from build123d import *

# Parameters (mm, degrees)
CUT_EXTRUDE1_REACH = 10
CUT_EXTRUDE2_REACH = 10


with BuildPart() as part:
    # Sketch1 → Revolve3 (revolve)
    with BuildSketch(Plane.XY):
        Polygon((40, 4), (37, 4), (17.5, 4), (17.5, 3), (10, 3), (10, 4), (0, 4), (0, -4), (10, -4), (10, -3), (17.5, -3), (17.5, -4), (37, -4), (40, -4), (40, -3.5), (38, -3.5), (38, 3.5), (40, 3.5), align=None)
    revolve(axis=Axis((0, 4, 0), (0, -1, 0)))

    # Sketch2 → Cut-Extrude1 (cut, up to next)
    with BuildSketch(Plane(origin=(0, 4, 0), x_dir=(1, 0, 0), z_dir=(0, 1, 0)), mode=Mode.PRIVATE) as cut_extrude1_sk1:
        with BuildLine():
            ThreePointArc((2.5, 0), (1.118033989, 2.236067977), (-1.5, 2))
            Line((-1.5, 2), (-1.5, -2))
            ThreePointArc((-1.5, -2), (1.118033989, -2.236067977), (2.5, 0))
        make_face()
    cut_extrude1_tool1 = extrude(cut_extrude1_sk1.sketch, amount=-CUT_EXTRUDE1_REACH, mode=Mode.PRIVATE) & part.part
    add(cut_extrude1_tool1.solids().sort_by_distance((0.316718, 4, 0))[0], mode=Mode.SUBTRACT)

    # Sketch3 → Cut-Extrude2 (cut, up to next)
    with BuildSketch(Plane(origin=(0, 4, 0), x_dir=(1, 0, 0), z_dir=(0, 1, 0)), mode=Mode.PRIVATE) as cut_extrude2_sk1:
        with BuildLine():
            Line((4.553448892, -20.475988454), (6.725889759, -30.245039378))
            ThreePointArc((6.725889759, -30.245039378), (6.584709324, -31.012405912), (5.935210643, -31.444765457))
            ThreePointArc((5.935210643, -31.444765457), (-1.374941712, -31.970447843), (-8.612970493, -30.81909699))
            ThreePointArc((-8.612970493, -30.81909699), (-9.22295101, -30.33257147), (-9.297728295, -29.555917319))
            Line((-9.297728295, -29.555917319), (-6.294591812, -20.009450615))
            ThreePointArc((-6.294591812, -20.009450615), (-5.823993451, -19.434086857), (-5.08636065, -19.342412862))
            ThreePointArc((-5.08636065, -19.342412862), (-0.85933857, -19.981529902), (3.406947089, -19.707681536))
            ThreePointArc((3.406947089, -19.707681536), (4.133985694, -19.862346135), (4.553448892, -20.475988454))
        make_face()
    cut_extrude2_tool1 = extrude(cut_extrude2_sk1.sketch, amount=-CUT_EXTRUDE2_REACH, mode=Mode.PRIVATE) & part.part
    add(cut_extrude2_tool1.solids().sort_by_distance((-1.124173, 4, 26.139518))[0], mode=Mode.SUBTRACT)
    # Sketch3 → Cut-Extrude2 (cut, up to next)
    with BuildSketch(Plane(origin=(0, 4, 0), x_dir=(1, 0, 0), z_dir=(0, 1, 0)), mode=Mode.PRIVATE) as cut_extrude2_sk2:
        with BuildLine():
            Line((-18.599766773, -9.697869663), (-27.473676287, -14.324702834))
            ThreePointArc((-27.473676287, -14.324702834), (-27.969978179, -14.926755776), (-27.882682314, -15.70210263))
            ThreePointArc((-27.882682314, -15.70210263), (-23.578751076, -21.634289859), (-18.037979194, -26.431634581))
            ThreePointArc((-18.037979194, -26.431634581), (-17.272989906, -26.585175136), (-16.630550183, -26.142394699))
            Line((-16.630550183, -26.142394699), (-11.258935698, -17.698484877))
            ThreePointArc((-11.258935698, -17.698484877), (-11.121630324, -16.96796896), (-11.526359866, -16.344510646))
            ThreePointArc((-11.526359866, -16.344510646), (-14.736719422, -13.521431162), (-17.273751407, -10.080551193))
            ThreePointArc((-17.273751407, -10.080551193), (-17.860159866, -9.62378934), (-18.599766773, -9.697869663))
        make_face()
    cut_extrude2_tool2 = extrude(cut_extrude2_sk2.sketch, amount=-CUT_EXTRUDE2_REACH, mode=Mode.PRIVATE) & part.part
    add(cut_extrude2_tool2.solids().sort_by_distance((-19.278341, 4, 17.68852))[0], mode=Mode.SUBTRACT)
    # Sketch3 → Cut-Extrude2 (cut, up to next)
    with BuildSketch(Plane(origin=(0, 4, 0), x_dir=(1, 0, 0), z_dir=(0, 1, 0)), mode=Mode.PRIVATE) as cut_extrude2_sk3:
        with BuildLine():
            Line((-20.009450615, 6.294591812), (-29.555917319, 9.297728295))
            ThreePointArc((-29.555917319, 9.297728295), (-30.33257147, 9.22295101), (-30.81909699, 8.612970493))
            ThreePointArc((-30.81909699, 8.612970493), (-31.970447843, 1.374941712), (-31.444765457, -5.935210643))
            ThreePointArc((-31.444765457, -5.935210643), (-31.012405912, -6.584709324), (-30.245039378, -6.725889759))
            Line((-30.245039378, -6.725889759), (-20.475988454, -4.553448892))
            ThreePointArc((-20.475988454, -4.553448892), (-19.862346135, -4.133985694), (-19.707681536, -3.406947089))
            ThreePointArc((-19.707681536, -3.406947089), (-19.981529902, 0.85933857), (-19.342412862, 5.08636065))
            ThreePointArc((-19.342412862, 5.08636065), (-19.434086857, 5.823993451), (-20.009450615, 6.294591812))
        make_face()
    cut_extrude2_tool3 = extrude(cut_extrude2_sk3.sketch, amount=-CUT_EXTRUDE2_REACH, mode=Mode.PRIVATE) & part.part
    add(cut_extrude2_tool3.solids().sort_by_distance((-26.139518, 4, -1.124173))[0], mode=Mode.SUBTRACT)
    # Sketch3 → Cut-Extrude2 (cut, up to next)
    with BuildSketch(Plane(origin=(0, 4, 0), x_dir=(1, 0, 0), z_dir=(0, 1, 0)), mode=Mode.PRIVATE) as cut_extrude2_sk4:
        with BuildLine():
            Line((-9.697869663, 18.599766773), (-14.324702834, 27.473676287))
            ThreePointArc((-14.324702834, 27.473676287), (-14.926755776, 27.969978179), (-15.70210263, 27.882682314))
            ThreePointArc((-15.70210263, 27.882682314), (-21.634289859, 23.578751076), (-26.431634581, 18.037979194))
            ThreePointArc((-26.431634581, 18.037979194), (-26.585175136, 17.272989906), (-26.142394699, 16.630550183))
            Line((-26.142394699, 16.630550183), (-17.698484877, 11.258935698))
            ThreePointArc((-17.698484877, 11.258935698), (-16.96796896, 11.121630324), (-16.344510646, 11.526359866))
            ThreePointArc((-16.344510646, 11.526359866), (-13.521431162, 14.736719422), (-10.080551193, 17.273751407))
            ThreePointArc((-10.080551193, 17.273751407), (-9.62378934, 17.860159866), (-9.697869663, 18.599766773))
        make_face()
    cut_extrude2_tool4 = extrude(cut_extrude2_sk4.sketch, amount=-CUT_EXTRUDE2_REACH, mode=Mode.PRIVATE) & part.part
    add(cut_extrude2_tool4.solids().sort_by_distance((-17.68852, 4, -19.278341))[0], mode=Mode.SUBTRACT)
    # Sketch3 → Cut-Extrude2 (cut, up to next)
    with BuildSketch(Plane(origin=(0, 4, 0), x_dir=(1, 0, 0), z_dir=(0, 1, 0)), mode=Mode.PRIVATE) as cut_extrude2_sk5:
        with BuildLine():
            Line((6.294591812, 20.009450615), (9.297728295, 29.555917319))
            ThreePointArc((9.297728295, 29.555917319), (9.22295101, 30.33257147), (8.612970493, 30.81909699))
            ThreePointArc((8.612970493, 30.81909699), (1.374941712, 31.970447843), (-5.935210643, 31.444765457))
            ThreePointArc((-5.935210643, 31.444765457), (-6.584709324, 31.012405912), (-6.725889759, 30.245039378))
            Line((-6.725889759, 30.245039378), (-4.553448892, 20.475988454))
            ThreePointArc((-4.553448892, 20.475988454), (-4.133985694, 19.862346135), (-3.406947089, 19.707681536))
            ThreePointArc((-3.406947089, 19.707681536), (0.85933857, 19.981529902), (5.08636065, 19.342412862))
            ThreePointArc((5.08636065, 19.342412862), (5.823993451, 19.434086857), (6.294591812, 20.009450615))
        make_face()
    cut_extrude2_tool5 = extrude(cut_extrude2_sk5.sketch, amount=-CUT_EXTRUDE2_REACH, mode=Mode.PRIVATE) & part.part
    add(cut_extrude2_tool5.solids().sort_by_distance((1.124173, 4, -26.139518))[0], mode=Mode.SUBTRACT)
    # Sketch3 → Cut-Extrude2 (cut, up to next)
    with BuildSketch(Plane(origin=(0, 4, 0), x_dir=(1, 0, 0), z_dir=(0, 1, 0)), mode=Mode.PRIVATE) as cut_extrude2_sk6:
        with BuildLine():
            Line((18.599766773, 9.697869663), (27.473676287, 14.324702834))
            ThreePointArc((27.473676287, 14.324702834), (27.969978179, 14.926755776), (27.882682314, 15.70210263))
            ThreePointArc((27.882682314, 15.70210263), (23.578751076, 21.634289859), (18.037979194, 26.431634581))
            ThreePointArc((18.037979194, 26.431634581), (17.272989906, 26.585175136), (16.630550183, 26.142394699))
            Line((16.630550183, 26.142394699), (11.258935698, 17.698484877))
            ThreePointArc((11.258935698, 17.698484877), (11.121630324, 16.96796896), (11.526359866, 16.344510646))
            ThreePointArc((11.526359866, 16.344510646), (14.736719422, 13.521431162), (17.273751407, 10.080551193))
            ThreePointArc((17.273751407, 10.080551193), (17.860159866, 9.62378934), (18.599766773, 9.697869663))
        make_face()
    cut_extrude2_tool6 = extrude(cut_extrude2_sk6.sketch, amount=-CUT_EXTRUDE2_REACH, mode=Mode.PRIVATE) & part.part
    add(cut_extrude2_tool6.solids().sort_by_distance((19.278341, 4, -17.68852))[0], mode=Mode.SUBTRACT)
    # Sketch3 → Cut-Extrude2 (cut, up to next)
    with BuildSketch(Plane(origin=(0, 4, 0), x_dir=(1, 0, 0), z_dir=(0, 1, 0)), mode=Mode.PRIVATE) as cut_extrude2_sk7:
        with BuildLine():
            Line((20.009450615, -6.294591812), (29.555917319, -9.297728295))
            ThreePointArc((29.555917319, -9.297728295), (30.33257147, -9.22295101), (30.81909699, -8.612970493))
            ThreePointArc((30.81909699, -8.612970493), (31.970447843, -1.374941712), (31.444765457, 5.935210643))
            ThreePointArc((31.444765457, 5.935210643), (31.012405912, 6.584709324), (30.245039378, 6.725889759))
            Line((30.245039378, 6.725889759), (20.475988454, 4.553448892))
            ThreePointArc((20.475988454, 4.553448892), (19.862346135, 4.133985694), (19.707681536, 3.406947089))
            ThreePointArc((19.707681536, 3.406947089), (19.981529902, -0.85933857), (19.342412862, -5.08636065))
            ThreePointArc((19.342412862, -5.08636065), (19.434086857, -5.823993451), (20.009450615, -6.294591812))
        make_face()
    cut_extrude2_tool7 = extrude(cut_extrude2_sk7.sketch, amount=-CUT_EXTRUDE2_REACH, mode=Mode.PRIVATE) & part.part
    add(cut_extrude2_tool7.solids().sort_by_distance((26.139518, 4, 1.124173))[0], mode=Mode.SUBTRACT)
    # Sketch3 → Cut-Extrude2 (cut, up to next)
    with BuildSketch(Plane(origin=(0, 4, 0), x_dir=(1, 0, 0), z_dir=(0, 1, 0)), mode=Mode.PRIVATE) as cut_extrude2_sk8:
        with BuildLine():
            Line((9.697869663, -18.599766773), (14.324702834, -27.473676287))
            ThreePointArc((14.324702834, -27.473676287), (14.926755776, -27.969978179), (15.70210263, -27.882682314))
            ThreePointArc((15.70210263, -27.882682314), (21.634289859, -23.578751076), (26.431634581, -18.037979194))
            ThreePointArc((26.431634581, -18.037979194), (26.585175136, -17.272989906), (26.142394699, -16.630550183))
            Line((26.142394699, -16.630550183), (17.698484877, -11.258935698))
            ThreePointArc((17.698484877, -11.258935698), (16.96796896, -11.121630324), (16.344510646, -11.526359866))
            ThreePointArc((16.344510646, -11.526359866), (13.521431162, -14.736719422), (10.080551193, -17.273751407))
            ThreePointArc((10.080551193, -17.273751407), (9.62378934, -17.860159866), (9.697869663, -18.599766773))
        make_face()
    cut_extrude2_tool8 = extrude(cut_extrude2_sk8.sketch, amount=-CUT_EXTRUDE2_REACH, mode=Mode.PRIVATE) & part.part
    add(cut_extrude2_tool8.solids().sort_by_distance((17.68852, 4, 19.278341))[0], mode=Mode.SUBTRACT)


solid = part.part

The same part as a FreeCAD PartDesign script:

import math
import FreeCAD as App
import Part
import Sketcher
Q = App.Units.Quantity

doc = App.newDocument("Part")
body = doc.addObject("PartDesign::Body", "Body")

sketch1 = body.newObject("Sketcher::SketchObject", "Sketch")
sketch1.AttachmentSupport = (doc.getObject("XY_Plane"), [""])
sketch1.MapMode = "FlatFace"
sketch1.addGeometry([
    Part.LineSegment(App.Vector(40, 4, 0), App.Vector(17.5, 4, 0)),
    Part.LineSegment(App.Vector(17.5, 4, 0), App.Vector(17.5, 3, 0)),
    Part.LineSegment(App.Vector(17.5, 3, 0), App.Vector(10, 3, 0)),
    Part.LineSegment(App.Vector(10, 3, 0), App.Vector(10, 4, 0)),
    Part.LineSegment(App.Vector(10, 4, 0), App.Vector(0, 4, 0)),
    Part.LineSegment(App.Vector(0, 4, 0), App.Vector(0, -4, 0)),
    Part.LineSegment(App.Vector(0, -4, 0), App.Vector(10, -4, 0)),
    Part.LineSegment(App.Vector(10, -4, 0), App.Vector(10, -3, 0)),
    Part.LineSegment(App.Vector(10, -3, 0), App.Vector(17.5, -3, 0)),
    Part.LineSegment(App.Vector(17.5, -3, 0), App.Vector(17.5, -4, 0)),
    Part.LineSegment(App.Vector(17.5, -4, 0), App.Vector(40, -4, 0)),
    Part.LineSegment(App.Vector(40, -4, 0), App.Vector(40, -3.5, 0)),
    Part.LineSegment(App.Vector(40, -3.5, 0), App.Vector(38, -3.5, 0)),
    Part.LineSegment(App.Vector(38, -3.5, 0), App.Vector(38, 3.5, 0)),
    Part.LineSegment(App.Vector(38, 3.5, 0), App.Vector(40, 3.5, 0)),
    Part.LineSegment(App.Vector(40, 3.5, 0), App.Vector(40, 4, 0)),
], False)
sketch1.addConstraint([
    Sketcher.Constraint("Coincident", 0, 2, 1, 1),
    Sketcher.Constraint("Coincident", 1, 2, 2, 1),
    Sketcher.Constraint("Coincident", 2, 2, 3, 1),
    Sketcher.Constraint("Coincident", 3, 2, 4, 1),
    Sketcher.Constraint("Coincident", 4, 2, 5, 1),
    Sketcher.Constraint("Coincident", 5, 2, 6, 1),
    Sketcher.Constraint("Coincident", 6, 2, 7, 1),
    Sketcher.Constraint("Coincident", 7, 2, 8, 1),
    Sketcher.Constraint("Coincident", 8, 2, 9, 1),
    Sketcher.Constraint("Coincident", 9, 2, 10, 1),
    Sketcher.Constraint("Coincident", 10, 2, 11, 1),
    Sketcher.Constraint("Coincident", 11, 2, 12, 1),
    Sketcher.Constraint("Coincident", 12, 2, 13, 1),
    Sketcher.Constraint("Coincident", 13, 2, 14, 1),
    Sketcher.Constraint("Coincident", 14, 2, 15, 1),
    Sketcher.Constraint("Coincident", 15, 2, 0, 1),
    Sketcher.Constraint("Horizontal", 0),
    Sketcher.Constraint("Vertical", 1),
    Sketcher.Constraint("Horizontal", 2),
    Sketcher.Constraint("Vertical", 3),
    Sketcher.Constraint("Horizontal", 4),
    Sketcher.Constraint("Vertical", 5),
    Sketcher.Constraint("Horizontal", 6),
    Sketcher.Constraint("Vertical", 7),
    Sketcher.Constraint("Horizontal", 8),
    Sketcher.Constraint("Vertical", 9),
    Sketcher.Constraint("Horizontal", 10),
    Sketcher.Constraint("Vertical", 11),
    Sketcher.Constraint("Horizontal", 12),
    Sketcher.Constraint("Vertical", 13),
    Sketcher.Constraint("Horizontal", 14),
    Sketcher.Constraint("Vertical", 15),
    Sketcher.Constraint("Symmetric", 4, 2, 5, 2, -1, 1),
    Sketcher.Constraint("Symmetric", 2, 2, 7, 2, -1),
    Sketcher.Constraint("Symmetric", 0, 2, 9, 2, -1),
    Sketcher.Constraint("Symmetric", 11, 2, 14, 2, -1),
    Sketcher.Constraint("Horizontal", 0, 2, 3, 2),
    Sketcher.Constraint("DistanceX", 4, 2, 4, 1, Q("10 mm")),
    Sketcher.Constraint("DistanceX", 12, 2, 12, 1, Q("2 mm")),
    Sketcher.Constraint("DistanceY", 1, 2, 1, 1, Q("1 mm")),
    Sketcher.Constraint("DistanceY", 5, 2, 5, 1, Q("8 mm")),
    Sketcher.Constraint("DistanceY", 13, 1, 13, 2, Q("7 mm")),
    Sketcher.Constraint("DistanceX", 0, 2, 0, 1, Q("22.5 mm")),
    Sketcher.Constraint("DistanceX", 2, 2, 2, 1, Q("7.5 mm")),
])
revolution = body.newObject("PartDesign::Revolution", "Revolution")
revolution.Profile = sketch1
revolution.ReferenceAxis = (sketch1, ["V_Axis"])
revolution.Angle = 360

sketch2 = body.newObject("Sketcher::SketchObject", "Sketch001")
sketch2.AttachmentSupport = (doc.getObject("XZ_Plane"), [""])
sketch2.MapMode = "FlatFace"
sketch2.AttachmentOffset = App.Placement(App.Vector(0, 0, -4), App.Rotation())
sketch2.addGeometry([
    Part.ArcOfCircle(Part.Circle(App.Vector(0, 0, 0), App.Vector(0, 0, 1), 2.5), math.radians(-127), math.radians(0)),
    Part.LineSegment(App.Vector(-1.5, -2, 0), App.Vector(-1.5, 2, 0)),
    Part.ArcOfCircle(Part.Circle(App.Vector(0, 0, 0), App.Vector(0, 0, 1), 2.5), math.radians(0), math.radians(127)),
], False)
sketch2.addConstraint([
    Sketcher.Constraint("Coincident", 0, 1, 1, 1),
    Sketcher.Constraint("Coincident", 1, 2, 2, 2),
    Sketcher.Constraint("Tangent", 2, 1, 0, 2),
    Sketcher.Constraint("Vertical", 1),
    Sketcher.Constraint("Coincident", 0, 3, -1, 1),
    Sketcher.Constraint("Equal", 0, 2),
    Sketcher.Constraint("PointOnObject", 2, 1, -1),
    Sketcher.Constraint("Radius", 0, Q("2.5 mm")),
    Sketcher.Constraint("DistanceY", 1, 1, 1, 2, Q("4 mm")),
])
pocket1 = body.newObject("PartDesign::Pocket", "Pocket")
pocket1.Profile = sketch2
pocket1.Type = "UpToFirst"
pocket1.Reversed = True

sketch3 = body.newObject("Sketcher::SketchObject", "Sketch002")
sketch3.AttachmentSupport = (doc.getObject("XZ_Plane"), [""])
sketch3.MapMode = "FlatFace"
sketch3.AttachmentOffset = App.Placement(App.Vector(0, 0, -4), App.Rotation())
sketch3.addGeometry([
    Part.LineSegment(App.Vector(6.7, 30.2, 0), App.Vector(4.6, 20.5, 0)),
    Part.ArcOfCircle(Part.Circle(App.Vector(3.6, 20.7, 0), App.Vector(0, 0, 1), 1), math.radians(-100), math.radians(-13)),
    Part.ArcOfCircle(Part.Circle(App.Vector(0, 0, 0), App.Vector(0, 0, 1), 20), math.radians(80), math.radians(105)),
    Part.ArcOfCircle(Part.Circle(App.Vector(-5.3, 20.3, 0), App.Vector(0, 0, 1), 1), math.radians(-163), math.radians(-75)),
    Part.LineSegment(App.Vector(-6.3, 20, 0), App.Vector(-9.3, 29.6, 0)),
    Part.ArcOfCircle(Part.Circle(App.Vector(-8.3, 29.9, 0), App.Vector(0, 0, 1), 1), math.radians(106), math.radians(197)),
    Part.ArcOfCircle(Part.Circle(App.Vector(0, 0, 0), App.Vector(0, 0, 1), 32), math.radians(79), math.radians(106)),
    Part.ArcOfCircle(Part.Circle(App.Vector(5.7, 30.5, 0), App.Vector(0, 0, 1), 1), math.radians(-13), math.radians(79)),
], False)
sketch3.addConstraint([
    Sketcher.Constraint("Tangent", 0, 2, 1, 2),
    Sketcher.Constraint("Tangent", 1, 1, 2, 1),
    Sketcher.Constraint("Tangent", 2, 2, 3, 2),
    Sketcher.Constraint("Tangent", 3, 1, 4, 1),
    Sketcher.Constraint("Tangent", 4, 2, 5, 2),
    Sketcher.Constraint("Tangent", 5, 1, 6, 2),
    Sketcher.Constraint("Tangent", 6, 1, 7, 2),
    Sketcher.Constraint("Tangent", 7, 1, 0, 1),
    Sketcher.Constraint("Coincident", 2, 3, -1, 1),
    Sketcher.Constraint("Coincident", 6, 3, -1, 1),
    Sketcher.Constraint("Equal", 1, 3),
    Sketcher.Constraint("Equal", 3, 5),
    Sketcher.Constraint("Equal", 5, 7),
    Sketcher.Constraint("Equal", 0, 4),
    Sketcher.Constraint("Radius", 1, Q("1 mm")),
    Sketcher.Constraint("Radius", 2, Q("20 mm")),
    Sketcher.Constraint("Radius", 6, Q("32 mm")),
    Sketcher.Constraint("DistanceY", -1, 1, 5, 3, Q("29.856 mm")),
    Sketcher.Constraint("DistanceX", 1, 1, 0, 2, Q("1.146502 mm")),
    Sketcher.Constraint("DistanceY", 4, 2, 7, 3, Q("0.906199 mm")),
])
pocket2 = body.newObject("PartDesign::Pocket", "Pocket001")
pocket2.Profile = sketch3
pocket2.Type = "UpToFirst"
pocket2.Reversed = True

sketch4 = body.newObject("Sketcher::SketchObject", "Sketch003")
sketch4.AttachmentSupport = (doc.getObject("XZ_Plane"), [""])
sketch4.MapMode = "FlatFace"
sketch4.AttachmentOffset = App.Placement(App.Vector(0, 0, -4), App.Rotation())
sketch4.addGeometry([
    Part.LineSegment(App.Vector(-18.599767, 9.69787, 0), App.Vector(-27.473676, 14.324703, 0)),
    Part.ArcOfCircle(Part.Circle(App.Vector(-27.011348, 15.211412, 0), App.Vector(0, 0, 1), 1), math.radians(150.61401), math.radians(242.462582)),
    Part.ArcOfCircle(Part.Circle(App.Vector(0, 0, 0), App.Vector(0, 0, 1), 32), math.radians(124.311153), math.radians(150.61401)),
    Part.ArcOfCircle(Part.Circle(App.Vector(-17.474292, 25.605646, 0), App.Vector(0, 0, 1), 1), math.radians(32.462582), math.radians(124.311153)),
    Part.LineSegment(App.Vector(-16.63055, 26.142395, 0), App.Vector(-11.258936, 17.698485, 0)),
    Part.ArcOfCircle(Part.Circle(App.Vector(-12.102678, 17.161736, 0), App.Vector(0, 0, 1), 1), math.radians(-54.808016), math.radians(32.462582)),
    Part.ArcOfCircle(Part.Circle(App.Vector(0, 0, 0), App.Vector(0, 0, 1), 20), math.radians(125.191984), math.radians(149.733179)),
    Part.ArcOfCircle(Part.Circle(App.Vector(-18.137439, 10.584579, 0), App.Vector(0, 0, 1), 1), math.radians(-117.537418), math.radians(-30.266821)),
], False)
sketch4.addConstraint([
    Sketcher.Constraint("Coincident", 0, 2, 1, 2),
    Sketcher.Constraint("Coincident", 1, 1, 2, 2),
    Sketcher.Constraint("Coincident", 2, 1, 3, 2),
    Sketcher.Constraint("Coincident", 3, 1, 4, 1),
    Sketcher.Constraint("Coincident", 4, 2, 5, 2),
    Sketcher.Constraint("Coincident", 5, 1, 6, 1),
    Sketcher.Constraint("Coincident", 6, 2, 7, 2),
    Sketcher.Constraint("Coincident", 7, 1, 0, 1),
    Sketcher.Constraint("Coincident", 2, 3, -1, 1),
    Sketcher.Constraint("Coincident", 6, 3, -1, 1),
    Sketcher.Constraint("Radius", 1, Q("1 mm")),
    Sketcher.Constraint("Radius", 2, Q("32 mm")),
    Sketcher.Constraint("Radius", 3, Q("1 mm")),
    Sketcher.Constraint("Radius", 5, Q("1 mm")),
    Sketcher.Constraint("Radius", 6, Q("20 mm")),
    Sketcher.Constraint("Radius", 7, Q("1 mm")),
    Sketcher.Constraint("DistanceX", 0, 2, 5, 3, Q("15.370998 mm")),
    Sketcher.Constraint("DistanceY", 0, 2, 1, 1, Q("1.3774 mm")),
    Sketcher.Constraint("DistanceX", 2, 1, 5, 3, Q("5.935301 mm")),
    Sketcher.Constraint("DistanceX", 1, 3, 3, 1, Q("10.380798 mm")),
    Sketcher.Constraint("Distance", 0, Q("10.00769 mm")),
    Sketcher.Constraint("Distance", 4, Q("10.00769 mm")),
    Sketcher.Constraint("DistanceX", 1, 3, -1, 1, Q("27.011348 mm")),
    Sketcher.Constraint("DistanceX", 7, 3, -1, 1, Q("18.137439 mm")),
    Sketcher.Constraint("DistanceX", 2, 1, -1, 1, Q("18.037979 mm")),
    Sketcher.Constraint("DistanceX", 5, 1, -1, 1, Q("11.52636 mm")),
    Sketcher.Constraint("DistanceX", 6, 2, -1, 1, Q("17.273751 mm")),
    Sketcher.Constraint("DistanceY", 5, 3, 3, 3, Q("8.44391 mm")),
])
pocket3 = body.newObject("PartDesign::Pocket", "Pocket002")
pocket3.Profile = sketch4
pocket3.Type = "UpToFirst"
pocket3.Reversed = True

sketch5 = body.newObject("Sketcher::SketchObject", "Sketch004")
sketch5.AttachmentSupport = (doc.getObject("XZ_Plane"), [""])
sketch5.MapMode = "FlatFace"
sketch5.AttachmentOffset = App.Placement(App.Vector(0, 0, -4), App.Rotation())
sketch5.addGeometry([
    Part.LineSegment(App.Vector(-20, -6.3, 0), App.Vector(-29.6, -9.3, 0)),
    Part.ArcOfCircle(Part.Circle(App.Vector(-29.9, -8.3, 0), App.Vector(0, 0, 1), 1), math.radians(-164), math.radians(-73)),
    Part.ArcOfCircle(Part.Circle(App.Vector(0, 0, 0), App.Vector(0, 0, 1), 32), math.radians(169), math.radians(196)),
    Part.ArcOfCircle(Part.Circle(App.Vector(-30.5, 5.7, 0), App.Vector(0, 0, 1), 1), math.radians(77), math.radians(169)),
    Part.LineSegment(App.Vector(-30.2, 6.7, 0), App.Vector(-20.5, 4.6, 0)),
    Part.ArcOfCircle(Part.Circle(App.Vector(-20.7, 3.6, 0), App.Vector(0, 0, 1), 1), math.radians(-10), math.radians(77)),
    Part.ArcOfCircle(Part.Circle(App.Vector(0, 0, 0), App.Vector(0, 0, 1), 20), math.radians(170), math.radians(195)),
    Part.ArcOfCircle(Part.Circle(App.Vector(-20.3, -5.3, 0), App.Vector(0, 0, 1), 1), math.radians(-73), math.radians(15)),
], False)
sketch5.addConstraint([
    Sketcher.Constraint("Tangent", 0, 2, 1, 2),
    Sketcher.Constraint("Tangent", 1, 1, 2, 2),
    Sketcher.Constraint("Tangent", 2, 1, 3, 2),
    Sketcher.Constraint("Tangent", 3, 1, 4, 1),
    Sketcher.Constraint("Tangent", 4, 2, 5, 2),
    Sketcher.Constraint("Tangent", 5, 1, 6, 1),
    Sketcher.Constraint("Tangent", 6, 2, 7, 2),
    Sketcher.Constraint("Tangent", 7, 1, 0, 1),
    Sketcher.Constraint("Coincident", 2, 3, -1, 1),
    Sketcher.Constraint("Coincident", 6, 3, -1, 1),
    Sketcher.Constraint("Equal", 1, 3),
    Sketcher.Constraint("Equal", 3, 5),
    Sketcher.Constraint("Equal", 5, 7),
    Sketcher.Constraint("Equal", 0, 4),
    Sketcher.Constraint("Radius", 1, Q("1 mm")),
    Sketcher.Constraint("Radius", 2, Q("32 mm")),
    Sketcher.Constraint("Radius", 6, Q("20 mm")),
    Sketcher.Constraint("DistanceX", 1, 3, -1, 1, Q("29.856 mm")),
    Sketcher.Constraint("DistanceX", 3, 3, 0, 2, Q("0.906199 mm")),
    Sketcher.Constraint("DistanceX", 2, 1, 5, 3, Q("10.7517 mm")),
])
pocket4 = body.newObject("PartDesign::Pocket", "Pocket003")
pocket4.Profile = sketch5
pocket4.Type = "UpToFirst"
pocket4.Reversed = True

sketch6 = body.newObject("Sketcher::SketchObject", "Sketch005")
sketch6.AttachmentSupport = (doc.getObject("XZ_Plane"), [""])
sketch6.MapMode = "FlatFace"
sketch6.AttachmentOffset = App.Placement(App.Vector(0, 0, -4), App.Rotation())
sketch6.addGeometry([
    Part.LineSegment(App.Vector(-9.69787, -18.599767, 0), App.Vector(-14.324703, -27.473676, 0)),
    Part.ArcOfCircle(Part.Circle(App.Vector(-15.211412, -27.011348, 0), App.Vector(0, 0, 1), 1), math.radians(-119.38599), math.radians(-27.537418)),
    Part.ArcOfCircle(Part.Circle(App.Vector(0, 0, 0), App.Vector(0, 0, 1), 32), math.radians(-145.688847), math.radians(-119.38599)),
    Part.ArcOfCircle(Part.Circle(App.Vector(-25.605646, -17.474292, 0), App.Vector(0, 0, 1), 1), math.radians(122.462582), math.radians(214.311153)),
    Part.LineSegment(App.Vector(-26.142395, -16.63055, 0), App.Vector(-17.698485, -11.258936, 0)),
    Part.ArcOfCircle(Part.Circle(App.Vector(-17.161736, -12.102678, 0), App.Vector(0, 0, 1), 1), math.radians(35.191984), math.radians(122.462582)),
    Part.ArcOfCircle(Part.Circle(App.Vector(0, 0, 0), App.Vector(0, 0, 1), 20), math.radians(-144.808016), math.radians(-120.266821)),
    Part.ArcOfCircle(Part.Circle(App.Vector(-10.584579, -18.137439, 0), App.Vector(0, 0, 1), 1), math.radians(-27.537418), math.radians(59.733179)),
], False)
sketch6.addConstraint([
    Sketcher.Constraint("Coincident", 0, 2, 1, 2),
    Sketcher.Constraint("Coincident", 1, 1, 2, 2),
    Sketcher.Constraint("Coincident", 2, 1, 3, 2),
    Sketcher.Constraint("Coincident", 3, 1, 4, 1),
    Sketcher.Constraint("Coincident", 4, 2, 5, 2),
    Sketcher.Constraint("Coincident", 5, 1, 6, 1),
    Sketcher.Constraint("Coincident", 6, 2, 7, 2),
    Sketcher.Constraint("Coincident", 7, 1, 0, 1),
    Sketcher.Constraint("Coincident", 2, 3, -1, 1),
    Sketcher.Constraint("Coincident", 6, 3, -1, 1),
    Sketcher.Constraint("Radius", 1, Q("1 mm")),
    Sketcher.Constraint("Radius", 2, Q("32 mm")),
    Sketcher.Constraint("Radius", 3, Q("1 mm")),
    Sketcher.Constraint("Radius", 5, Q("1 mm")),
    Sketcher.Constraint("Radius", 6, Q("20 mm")),
    Sketcher.Constraint("Radius", 7, Q("1 mm")),
    Sketcher.Constraint("DistanceY", 0, 2, 5, 3, Q("15.370998 mm")),
    Sketcher.Constraint("DistanceX", 1, 1, 0, 2, Q("1.3774 mm")),
    Sketcher.Constraint("DistanceX", 2, 1, 5, 3, Q("9.269898 mm")),
    Sketcher.Constraint("DistanceY", 1, 3, 3, 1, Q("10.380798 mm")),
    Sketcher.Constraint("Distance", 0, Q("10.00769 mm")),
    Sketcher.Constraint("Distance", 4, Q("10.00769 mm")),
    Sketcher.Constraint("DistanceX", 1, 3, -1, 1, Q("15.211412 mm")),
    Sketcher.Constraint("DistanceX", 7, 3, -1, 1, Q("10.584579 mm")),
    Sketcher.Constraint("DistanceY", 2, 1, -1, 1, Q("18.037979 mm")),
    Sketcher.Constraint("DistanceX", 5, 1, -1, 1, Q("16.344511 mm")),
    Sketcher.Constraint("DistanceX", 6, 2, -1, 1, Q("10.080551 mm")),
    Sketcher.Constraint("DistanceX", 3, 3, 5, 3, Q("8.44391 mm")),
])
pocket5 = body.newObject("PartDesign::Pocket", "Pocket004")
pocket5.Profile = sketch6
pocket5.Type = "UpToFirst"
pocket5.Reversed = True

sketch7 = body.newObject("Sketcher::SketchObject", "Sketch006")
sketch7.AttachmentSupport = (doc.getObject("XZ_Plane"), [""])
sketch7.MapMode = "FlatFace"
sketch7.AttachmentOffset = App.Placement(App.Vector(0, 0, -4), App.Rotation())
sketch7.addGeometry([
    Part.LineSegment(App.Vector(6.3, -20, 0), App.Vector(9.3, -29.6, 0)),
    Part.ArcOfCircle(Part.Circle(App.Vector(8.3, -29.9, 0), App.Vector(0, 0, 1), 1), math.radians(-74), math.radians(17)),
    Part.ArcOfCircle(Part.Circle(App.Vector(0, 0, 0), App.Vector(0, 0, 1), 32), math.radians(-101), math.radians(-74)),
    Part.ArcOfCircle(Part.Circle(App.Vector(-5.7, -30.5, 0), App.Vector(0, 0, 1), 1), math.radians(167), math.radians(259)),
    Part.LineSegment(App.Vector(-6.7, -30.2, 0), App.Vector(-4.6, -20.5, 0)),
    Part.ArcOfCircle(Part.Circle(App.Vector(-3.6, -20.7, 0), App.Vector(0, 0, 1), 1), math.radians(80), math.radians(167)),
    Part.ArcOfCircle(Part.Circle(App.Vector(0, 0, 0), App.Vector(0, 0, 1), 20), math.radians(-100), math.radians(-75)),
    Part.ArcOfCircle(Part.Circle(App.Vector(5.3, -20.3, 0), App.Vector(0, 0, 1), 1), math.radians(17), math.radians(105)),
], False)
sketch7.addConstraint([
    Sketcher.Constraint("Tangent", 0, 2, 1, 2),
    Sketcher.Constraint("Tangent", 1, 1, 2, 2),
    Sketcher.Constraint("Tangent", 2, 1, 3, 2),
    Sketcher.Constraint("Tangent", 3, 1, 4, 1),
    Sketcher.Constraint("Tangent", 4, 2, 5, 2),
    Sketcher.Constraint("Tangent", 5, 1, 6, 1),
    Sketcher.Constraint("Tangent", 6, 2, 7, 2),
    Sketcher.Constraint("Tangent", 7, 1, 0, 1),
    Sketcher.Constraint("Coincident", 2, 3, -1, 1),
    Sketcher.Constraint("Coincident", 6, 3, -1, 1),
    Sketcher.Constraint("Equal", 1, 3),
    Sketcher.Constraint("Equal", 3, 5),
    Sketcher.Constraint("Equal", 5, 7),
    Sketcher.Constraint("Equal", 0, 4),
    Sketcher.Constraint("Radius", 1, Q("1 mm")),
    Sketcher.Constraint("Radius", 2, Q("32 mm")),
    Sketcher.Constraint("Radius", 6, Q("20 mm")),
    Sketcher.Constraint("DistanceY", 1, 3, -1, 1, Q("29.856 mm")),
    Sketcher.Constraint("DistanceY", 3, 3, 0, 2, Q("0.906199 mm")),
    Sketcher.Constraint("DistanceY", 2, 1, 5, 3, Q("10.7517 mm")),
])
pocket6 = body.newObject("PartDesign::Pocket", "Pocket005")
pocket6.Profile = sketch7
pocket6.Type = "UpToFirst"
pocket6.Reversed = True

sketch8 = body.newObject("Sketcher::SketchObject", "Sketch007")
sketch8.AttachmentSupport = (doc.getObject("XZ_Plane"), [""])
sketch8.MapMode = "FlatFace"
sketch8.AttachmentOffset = App.Placement(App.Vector(0, 0, -4), App.Rotation())
sketch8.addGeometry([
    Part.LineSegment(App.Vector(18.599767, -9.69787, 0), App.Vector(27.473676, -14.324703, 0)),
    Part.ArcOfCircle(Part.Circle(App.Vector(27.011348, -15.211412, 0), App.Vector(0, 0, 1), 1), math.radians(-29.38599), math.radians(62.462582)),
    Part.ArcOfCircle(Part.Circle(App.Vector(0, 0, 0), App.Vector(0, 0, 1), 32), math.radians(-55.688847), math.radians(-29.38599)),
    Part.ArcOfCircle(Part.Circle(App.Vector(17.474292, -25.605646, 0), App.Vector(0, 0, 1), 1), math.radians(-147.537418), math.radians(-55.688847)),
    Part.LineSegment(App.Vector(16.63055, -26.142395, 0), App.Vector(11.258936, -17.698485, 0)),
    Part.ArcOfCircle(Part.Circle(App.Vector(12.102678, -17.161736, 0), App.Vector(0, 0, 1), 1), math.radians(125.191984), math.radians(212.462582)),
    Part.ArcOfCircle(Part.Circle(App.Vector(0, 0, 0), App.Vector(0, 0, 1), 20), math.radians(-54.808016), math.radians(-30.266821)),
    Part.ArcOfCircle(Part.Circle(App.Vector(18.137439, -10.584579, 0), App.Vector(0, 0, 1), 1), math.radians(62.462582), math.radians(149.733179)),
], False)
sketch8.addConstraint([
    Sketcher.Constraint("Coincident", 0, 2, 1, 2),
    Sketcher.Constraint("Coincident", 1, 1, 2, 2),
    Sketcher.Constraint("Coincident", 2, 1, 3, 2),
    Sketcher.Constraint("Coincident", 3, 1, 4, 1),
    Sketcher.Constraint("Coincident", 4, 2, 5, 2),
    Sketcher.Constraint("Coincident", 5, 1, 6, 1),
    Sketcher.Constraint("Coincident", 6, 2, 7, 2),
    Sketcher.Constraint("Coincident", 7, 1, 0, 1),
    Sketcher.Constraint("Coincident", 2, 3, -1, 1),
    Sketcher.Constraint("Coincident", 6, 3, -1, 1),
    Sketcher.Constraint("Radius", 1, Q("1 mm")),
    Sketcher.Constraint("Radius", 2, Q("32 mm")),
    Sketcher.Constraint("Radius", 3, Q("1 mm")),
    Sketcher.Constraint("Radius", 5, Q("1 mm")),
    Sketcher.Constraint("Radius", 6, Q("20 mm")),
    Sketcher.Constraint("Radius", 7, Q("1 mm")),
    Sketcher.Constraint("DistanceX", 5, 3, 0, 2, Q("15.370998 mm")),
    Sketcher.Constraint("DistanceY", 1, 1, 0, 2, Q("1.3774 mm")),
    Sketcher.Constraint("DistanceX", 5, 3, 2, 1, Q("5.935301 mm")),
    Sketcher.Constraint("DistanceX", 3, 1, 1, 3, Q("10.380798 mm")),
    Sketcher.Constraint("Distance", 0, Q("10.00769 mm")),
    Sketcher.Constraint("Distance", 4, Q("10.00769 mm")),
    Sketcher.Constraint("DistanceX", -1, 1, 1, 3, Q("27.011348 mm")),
    Sketcher.Constraint("DistanceX", -1, 1, 7, 3, Q("18.137439 mm")),
    Sketcher.Constraint("DistanceX", -1, 1, 2, 1, Q("18.037979 mm")),
    Sketcher.Constraint("DistanceX", -1, 1, 5, 1, Q("11.52636 mm")),
    Sketcher.Constraint("DistanceX", -1, 1, 6, 2, Q("17.273751 mm")),
    Sketcher.Constraint("DistanceY", 3, 3, 5, 3, Q("8.44391 mm")),
])
pocket7 = body.newObject("PartDesign::Pocket", "Pocket006")
pocket7.Profile = sketch8
pocket7.Type = "UpToFirst"
pocket7.Reversed = True

sketch9 = body.newObject("Sketcher::SketchObject", "Sketch008")
sketch9.AttachmentSupport = (doc.getObject("XZ_Plane"), [""])
sketch9.MapMode = "FlatFace"
sketch9.AttachmentOffset = App.Placement(App.Vector(0, 0, -4), App.Rotation())
sketch9.addGeometry([
    Part.LineSegment(App.Vector(20, 6.3, 0), App.Vector(29.6, 9.3, 0)),
    Part.ArcOfCircle(Part.Circle(App.Vector(29.9, 8.3, 0), App.Vector(0, 0, 1), 1), math.radians(16), math.radians(107)),
    Part.ArcOfCircle(Part.Circle(App.Vector(0, 0, 0), App.Vector(0, 0, 1), 32), math.radians(-11), math.radians(16)),
    Part.ArcOfCircle(Part.Circle(App.Vector(30.5, -5.7, 0), App.Vector(0, 0, 1), 1), math.radians(-103), math.radians(-11)),
    Part.LineSegment(App.Vector(30.2, -6.7, 0), App.Vector(20.5, -4.6, 0)),
    Part.ArcOfCircle(Part.Circle(App.Vector(20.7, -3.6, 0), App.Vector(0, 0, 1), 1), math.radians(170), math.radians(257)),
    Part.ArcOfCircle(Part.Circle(App.Vector(0, 0, 0), App.Vector(0, 0, 1), 20), math.radians(-10), math.radians(15)),
    Part.ArcOfCircle(Part.Circle(App.Vector(20.3, 5.3, 0), App.Vector(0, 0, 1), 1), math.radians(107), math.radians(195)),
], False)
sketch9.addConstraint([
    Sketcher.Constraint("Tangent", 0, 2, 1, 2),
    Sketcher.Constraint("Tangent", 1, 1, 2, 2),
    Sketcher.Constraint("Tangent", 2, 1, 3, 2),
    Sketcher.Constraint("Tangent", 3, 1, 4, 1),
    Sketcher.Constraint("Tangent", 4, 2, 5, 2),
    Sketcher.Constraint("Tangent", 5, 1, 6, 1),
    Sketcher.Constraint("Tangent", 6, 2, 7, 2),
    Sketcher.Constraint("Tangent", 7, 1, 0, 1),
    Sketcher.Constraint("Coincident", 2, 3, -1, 1),
    Sketcher.Constraint("Coincident", 6, 3, -1, 1),
    Sketcher.Constraint("Equal", 1, 3),
    Sketcher.Constraint("Equal", 3, 5),
    Sketcher.Constraint("Equal", 5, 7),
    Sketcher.Constraint("Equal", 0, 4),
    Sketcher.Constraint("Radius", 1, Q("1 mm")),
    Sketcher.Constraint("Radius", 2, Q("32 mm")),
    Sketcher.Constraint("Radius", 6, Q("20 mm")),
    Sketcher.Constraint("DistanceX", -1, 1, 1, 3, Q("29.856 mm")),
    Sketcher.Constraint("DistanceX", 0, 2, 3, 3, Q("0.906199 mm")),
    Sketcher.Constraint("DistanceX", 5, 3, 2, 1, Q("10.7517 mm")),
])
pocket8 = body.newObject("PartDesign::Pocket", "Pocket007")
pocket8.Profile = sketch9
pocket8.Type = "UpToFirst"
pocket8.Reversed = True

sketch10 = body.newObject("Sketcher::SketchObject", "Sketch009")
sketch10.AttachmentSupport = (doc.getObject("XZ_Plane"), [""])
sketch10.MapMode = "FlatFace"
sketch10.AttachmentOffset = App.Placement(App.Vector(0, 0, -4), App.Rotation())
sketch10.addGeometry([
    Part.LineSegment(App.Vector(9.69787, 18.599767, 0), App.Vector(14.324703, 27.473676, 0)),
    Part.ArcOfCircle(Part.Circle(App.Vector(15.211412, 27.011348, 0), App.Vector(0, 0, 1), 1), math.radians(60.61401), math.radians(152.462582)),
    Part.ArcOfCircle(Part.Circle(App.Vector(0, 0, 0), App.Vector(0, 0, 1), 32), math.radians(34.311153), math.radians(60.61401)),
    Part.ArcOfCircle(Part.Circle(App.Vector(25.605646, 17.474292, 0), App.Vector(0, 0, 1), 1), math.radians(-57.537418), math.radians(34.311153)),
    Part.LineSegment(App.Vector(26.142395, 16.63055, 0), App.Vector(17.698485, 11.258936, 0)),
    Part.ArcOfCircle(Part.Circle(App.Vector(17.161736, 12.102678, 0), App.Vector(0, 0, 1), 1), math.radians(-144.808016), math.radians(-57.537418)),
    Part.ArcOfCircle(Part.Circle(App.Vector(0, 0, 0), App.Vector(0, 0, 1), 20), math.radians(35.191984), math.radians(59.733179)),
    Part.ArcOfCircle(Part.Circle(App.Vector(10.584579, 18.137439, 0), App.Vector(0, 0, 1), 1), math.radians(152.462582), math.radians(239.733179)),
], False)
sketch10.addConstraint([
    Sketcher.Constraint("Coincident", 0, 2, 1, 2),
    Sketcher.Constraint("Coincident", 1, 1, 2, 2),
    Sketcher.Constraint("Coincident", 2, 1, 3, 2),
    Sketcher.Constraint("Coincident", 3, 1, 4, 1),
    Sketcher.Constraint("Coincident", 4, 2, 5, 2),
    Sketcher.Constraint("Coincident", 5, 1, 6, 1),
    Sketcher.Constraint("Coincident", 6, 2, 7, 2),
    Sketcher.Constraint("Coincident", 7, 1, 0, 1),
    Sketcher.Constraint("Coincident", 2, 3, -1, 1),
    Sketcher.Constraint("Coincident", 6, 3, -1, 1),
    Sketcher.Constraint("Radius", 1, Q("1 mm")),
    Sketcher.Constraint("Radius", 2, Q("32 mm")),
    Sketcher.Constraint("Radius", 3, Q("1 mm")),
    Sketcher.Constraint("Radius", 5, Q("1 mm")),
    Sketcher.Constraint("Radius", 6, Q("20 mm")),
    Sketcher.Constraint("Radius", 7, Q("1 mm")),
    Sketcher.Constraint("DistanceY", 5, 3, 0, 2, Q("15.370998 mm")),
    Sketcher.Constraint("DistanceX", 0, 2, 1, 1, Q("1.3774 mm")),
    Sketcher.Constraint("DistanceX", 5, 3, 2, 1, Q("9.269898 mm")),
    Sketcher.Constraint("DistanceY", 3, 1, 1, 3, Q("10.380798 mm")),
    Sketcher.Constraint("Distance", 0, Q("10.00769 mm")),
    Sketcher.Constraint("Distance", 4, Q("10.00769 mm")),
    Sketcher.Constraint("DistanceX", -1, 1, 1, 3, Q("15.211412 mm")),
    Sketcher.Constraint("DistanceX", -1, 1, 7, 3, Q("10.584579 mm")),
    Sketcher.Constraint("DistanceY", -1, 1, 2, 1, Q("18.037979 mm")),
    Sketcher.Constraint("DistanceX", -1, 1, 5, 1, Q("16.344511 mm")),
    Sketcher.Constraint("DistanceX", -1, 1, 6, 2, Q("10.080551 mm")),
    Sketcher.Constraint("DistanceX", 5, 3, 3, 3, Q("8.44391 mm")),
])
pocket9 = body.newObject("PartDesign::Pocket", "Pocket008")
pocket9.Profile = sketch10
pocket9.Type = "UpToFirst"
pocket9.Reversed = True

doc.recompute()
